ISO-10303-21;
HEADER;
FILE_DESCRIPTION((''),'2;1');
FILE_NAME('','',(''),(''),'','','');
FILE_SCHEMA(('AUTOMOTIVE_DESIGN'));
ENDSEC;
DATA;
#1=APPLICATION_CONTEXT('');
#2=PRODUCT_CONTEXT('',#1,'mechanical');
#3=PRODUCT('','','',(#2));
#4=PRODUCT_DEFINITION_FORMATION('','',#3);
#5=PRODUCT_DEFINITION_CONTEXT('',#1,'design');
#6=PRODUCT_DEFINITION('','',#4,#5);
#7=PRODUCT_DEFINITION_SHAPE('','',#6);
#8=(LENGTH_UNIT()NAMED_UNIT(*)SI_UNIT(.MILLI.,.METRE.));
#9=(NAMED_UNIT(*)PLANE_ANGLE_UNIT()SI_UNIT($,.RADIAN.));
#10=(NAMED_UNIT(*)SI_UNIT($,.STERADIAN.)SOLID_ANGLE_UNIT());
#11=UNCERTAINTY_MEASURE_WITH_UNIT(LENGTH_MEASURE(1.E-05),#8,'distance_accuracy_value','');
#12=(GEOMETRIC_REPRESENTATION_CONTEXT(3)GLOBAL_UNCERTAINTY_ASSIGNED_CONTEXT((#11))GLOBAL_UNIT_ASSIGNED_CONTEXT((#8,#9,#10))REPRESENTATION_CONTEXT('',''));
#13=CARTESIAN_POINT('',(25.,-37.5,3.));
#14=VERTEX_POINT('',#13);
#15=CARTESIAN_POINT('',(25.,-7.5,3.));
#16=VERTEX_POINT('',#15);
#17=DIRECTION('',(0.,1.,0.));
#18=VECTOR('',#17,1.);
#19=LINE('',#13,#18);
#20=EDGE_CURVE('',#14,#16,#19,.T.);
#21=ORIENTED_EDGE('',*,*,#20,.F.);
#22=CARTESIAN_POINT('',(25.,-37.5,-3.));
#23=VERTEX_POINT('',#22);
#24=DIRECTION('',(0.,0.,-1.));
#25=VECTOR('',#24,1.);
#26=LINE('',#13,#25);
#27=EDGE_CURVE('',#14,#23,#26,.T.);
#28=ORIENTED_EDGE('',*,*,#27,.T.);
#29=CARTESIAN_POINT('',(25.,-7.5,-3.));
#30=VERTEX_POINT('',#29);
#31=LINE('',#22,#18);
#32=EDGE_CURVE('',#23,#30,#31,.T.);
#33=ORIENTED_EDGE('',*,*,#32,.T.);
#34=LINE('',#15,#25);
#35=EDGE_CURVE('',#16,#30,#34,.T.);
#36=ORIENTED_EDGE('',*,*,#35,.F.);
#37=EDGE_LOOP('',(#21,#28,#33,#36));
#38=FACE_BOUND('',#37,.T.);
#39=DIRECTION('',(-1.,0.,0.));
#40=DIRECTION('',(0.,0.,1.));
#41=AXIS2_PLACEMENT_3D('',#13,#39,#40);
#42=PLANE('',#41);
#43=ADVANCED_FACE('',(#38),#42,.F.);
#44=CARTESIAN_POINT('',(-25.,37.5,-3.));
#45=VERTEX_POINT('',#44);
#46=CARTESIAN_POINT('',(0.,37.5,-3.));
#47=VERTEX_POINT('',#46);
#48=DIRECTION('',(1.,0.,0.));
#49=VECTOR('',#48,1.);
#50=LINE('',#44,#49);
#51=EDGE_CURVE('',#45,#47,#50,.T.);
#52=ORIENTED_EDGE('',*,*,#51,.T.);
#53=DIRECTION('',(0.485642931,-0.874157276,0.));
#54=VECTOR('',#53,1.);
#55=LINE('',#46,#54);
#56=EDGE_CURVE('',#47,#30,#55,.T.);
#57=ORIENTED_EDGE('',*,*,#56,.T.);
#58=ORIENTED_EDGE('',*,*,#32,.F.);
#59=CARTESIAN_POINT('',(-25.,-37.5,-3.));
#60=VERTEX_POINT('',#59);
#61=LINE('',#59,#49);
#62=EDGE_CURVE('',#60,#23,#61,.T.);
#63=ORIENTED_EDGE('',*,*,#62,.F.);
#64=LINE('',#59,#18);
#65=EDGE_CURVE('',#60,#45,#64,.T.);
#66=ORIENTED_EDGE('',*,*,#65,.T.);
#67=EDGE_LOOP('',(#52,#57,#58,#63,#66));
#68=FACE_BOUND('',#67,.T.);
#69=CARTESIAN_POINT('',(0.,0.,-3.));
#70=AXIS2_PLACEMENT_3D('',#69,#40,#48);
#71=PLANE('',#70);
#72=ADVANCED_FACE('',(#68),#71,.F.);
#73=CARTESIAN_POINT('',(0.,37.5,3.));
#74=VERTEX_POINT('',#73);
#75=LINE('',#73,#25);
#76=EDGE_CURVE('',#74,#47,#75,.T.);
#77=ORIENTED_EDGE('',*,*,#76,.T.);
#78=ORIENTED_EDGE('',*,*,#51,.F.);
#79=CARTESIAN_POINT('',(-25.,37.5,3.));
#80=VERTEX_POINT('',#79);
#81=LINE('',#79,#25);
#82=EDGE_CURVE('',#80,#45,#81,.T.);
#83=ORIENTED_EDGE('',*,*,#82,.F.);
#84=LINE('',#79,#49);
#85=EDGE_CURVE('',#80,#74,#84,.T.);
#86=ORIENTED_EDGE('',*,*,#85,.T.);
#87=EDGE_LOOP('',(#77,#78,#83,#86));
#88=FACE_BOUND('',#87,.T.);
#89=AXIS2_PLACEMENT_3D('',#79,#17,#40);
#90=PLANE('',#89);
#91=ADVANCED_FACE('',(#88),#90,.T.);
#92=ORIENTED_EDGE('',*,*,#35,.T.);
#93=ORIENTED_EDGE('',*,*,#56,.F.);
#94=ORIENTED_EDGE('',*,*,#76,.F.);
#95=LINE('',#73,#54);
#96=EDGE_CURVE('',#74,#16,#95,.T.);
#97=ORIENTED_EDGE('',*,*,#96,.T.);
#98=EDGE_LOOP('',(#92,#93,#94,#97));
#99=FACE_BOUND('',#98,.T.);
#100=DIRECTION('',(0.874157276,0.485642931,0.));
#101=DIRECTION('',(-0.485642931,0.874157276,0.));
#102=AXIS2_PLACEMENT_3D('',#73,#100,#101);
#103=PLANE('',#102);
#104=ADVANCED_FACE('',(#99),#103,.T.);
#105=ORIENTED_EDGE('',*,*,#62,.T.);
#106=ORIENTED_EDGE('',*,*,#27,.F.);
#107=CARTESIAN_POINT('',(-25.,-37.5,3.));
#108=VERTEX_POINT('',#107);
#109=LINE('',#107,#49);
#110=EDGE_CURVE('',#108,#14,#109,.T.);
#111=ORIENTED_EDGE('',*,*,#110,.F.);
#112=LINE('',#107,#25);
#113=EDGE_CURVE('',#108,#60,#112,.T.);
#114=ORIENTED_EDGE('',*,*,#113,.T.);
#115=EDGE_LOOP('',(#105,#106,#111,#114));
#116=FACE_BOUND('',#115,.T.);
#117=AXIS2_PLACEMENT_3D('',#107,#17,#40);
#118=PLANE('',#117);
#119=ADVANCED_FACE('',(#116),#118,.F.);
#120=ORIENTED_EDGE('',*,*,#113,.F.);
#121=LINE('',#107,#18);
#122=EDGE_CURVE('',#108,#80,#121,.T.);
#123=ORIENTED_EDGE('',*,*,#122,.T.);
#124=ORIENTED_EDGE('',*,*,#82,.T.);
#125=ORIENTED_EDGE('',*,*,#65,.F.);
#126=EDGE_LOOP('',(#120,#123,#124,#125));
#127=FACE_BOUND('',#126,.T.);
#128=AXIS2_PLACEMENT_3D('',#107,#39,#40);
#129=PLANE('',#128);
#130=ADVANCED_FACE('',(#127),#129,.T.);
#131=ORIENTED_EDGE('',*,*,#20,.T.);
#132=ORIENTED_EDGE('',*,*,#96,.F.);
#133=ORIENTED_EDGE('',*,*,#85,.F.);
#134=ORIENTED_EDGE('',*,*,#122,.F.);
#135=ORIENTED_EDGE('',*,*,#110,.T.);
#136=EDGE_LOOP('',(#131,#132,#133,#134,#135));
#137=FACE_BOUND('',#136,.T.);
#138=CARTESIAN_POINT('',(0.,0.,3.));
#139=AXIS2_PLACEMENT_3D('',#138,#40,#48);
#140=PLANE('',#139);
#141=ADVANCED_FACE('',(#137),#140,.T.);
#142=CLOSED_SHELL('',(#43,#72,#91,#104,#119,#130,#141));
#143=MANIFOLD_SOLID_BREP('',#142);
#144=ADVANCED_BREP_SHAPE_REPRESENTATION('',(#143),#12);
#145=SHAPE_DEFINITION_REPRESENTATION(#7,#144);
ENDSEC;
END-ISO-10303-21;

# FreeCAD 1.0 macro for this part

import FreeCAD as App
import Part
import Sketcher
from FreeCAD import Vector

doc = App.newDocument("Part")
params = doc.addObject("Spreadsheet::Sheet", "Params")
for row, (alias, value) in enumerate([
    ("sketch1_width", "25 mm"),
    ("sketch1_height", "75 mm"),
    ("sketch1_height2", "30 mm"),
    ("pad1_length", "6 mm"),
], start=1):
    params.set(f"A{row}", alias)
    params.set(f"B{row}", "=" + value)
    params.setAlias(f"B{row}", alias)

body = doc.addObject("PartDesign::Body", "Body")

sketch1 = doc.addObject("Sketcher::SketchObject", "Sketch")
body.addObject(sketch1)
sketch1.AttachmentSupport = (doc.XY_Plane, [""])
sketch1.MapMode = "FlatFace"
sketch1.addGeometry([
    Part.LineSegment(Vector(25, -8, 0), Vector(0, 38, 0)),
    Part.LineSegment(Vector(0, 38, 0), Vector(-25, 38, 0)),
    Part.LineSegment(Vector(-25, 38, 0), Vector(-25, -38, 0)),
    Part.LineSegment(Vector(-25, -38, 0), Vector(25, -38, 0)),
    Part.LineSegment(Vector(25, -38, 0), Vector(25, -8, 0)),
], False)
sketch1.addConstraint([
    Sketcher.Constraint("Coincident", 0, 2, 1, 1),
    Sketcher.Constraint("Coincident", 1, 2, 2, 1),
    Sketcher.Constraint("Coincident", 2, 2, 3, 1),
    Sketcher.Constraint("Coincident", 3, 2, 4, 1),
    Sketcher.Constraint("Coincident", 4, 2, 0, 1),
    Sketcher.Constraint("Horizontal", 1),
    Sketcher.Constraint("Vertical", 2),
    Sketcher.Constraint("Horizontal", 3),
    Sketcher.Constraint("Vertical", 4),
    Sketcher.Constraint("Symmetric", 1, 2, 3, 2, -1, 1),
    Sketcher.Constraint("PointOnObject", 0, 2, -2),
    Sketcher.Constraint("DistanceX", 1, 2, 1, 1, 25.0),
    Sketcher.Constraint("DistanceY", 2, 2, 2, 1, 75.0),
    Sketcher.Constraint("DistanceY", 4, 1, 4, 2, 30.0),
])
sketch1.setExpression("Constraints[11]", "Params.sketch1_width")
sketch1.setExpression("Constraints[12]", "Params.sketch1_height")
sketch1.setExpression("Constraints[13]", "Params.sketch1_height2")
pad1 = doc.addObject("PartDesign::Pad", "Pad")
body.addObject(pad1)
pad1.Profile = sketch1
pad1.setExpression("Length", "Params.pad1_length")
pad1.Midplane = True

doc.recompute()
